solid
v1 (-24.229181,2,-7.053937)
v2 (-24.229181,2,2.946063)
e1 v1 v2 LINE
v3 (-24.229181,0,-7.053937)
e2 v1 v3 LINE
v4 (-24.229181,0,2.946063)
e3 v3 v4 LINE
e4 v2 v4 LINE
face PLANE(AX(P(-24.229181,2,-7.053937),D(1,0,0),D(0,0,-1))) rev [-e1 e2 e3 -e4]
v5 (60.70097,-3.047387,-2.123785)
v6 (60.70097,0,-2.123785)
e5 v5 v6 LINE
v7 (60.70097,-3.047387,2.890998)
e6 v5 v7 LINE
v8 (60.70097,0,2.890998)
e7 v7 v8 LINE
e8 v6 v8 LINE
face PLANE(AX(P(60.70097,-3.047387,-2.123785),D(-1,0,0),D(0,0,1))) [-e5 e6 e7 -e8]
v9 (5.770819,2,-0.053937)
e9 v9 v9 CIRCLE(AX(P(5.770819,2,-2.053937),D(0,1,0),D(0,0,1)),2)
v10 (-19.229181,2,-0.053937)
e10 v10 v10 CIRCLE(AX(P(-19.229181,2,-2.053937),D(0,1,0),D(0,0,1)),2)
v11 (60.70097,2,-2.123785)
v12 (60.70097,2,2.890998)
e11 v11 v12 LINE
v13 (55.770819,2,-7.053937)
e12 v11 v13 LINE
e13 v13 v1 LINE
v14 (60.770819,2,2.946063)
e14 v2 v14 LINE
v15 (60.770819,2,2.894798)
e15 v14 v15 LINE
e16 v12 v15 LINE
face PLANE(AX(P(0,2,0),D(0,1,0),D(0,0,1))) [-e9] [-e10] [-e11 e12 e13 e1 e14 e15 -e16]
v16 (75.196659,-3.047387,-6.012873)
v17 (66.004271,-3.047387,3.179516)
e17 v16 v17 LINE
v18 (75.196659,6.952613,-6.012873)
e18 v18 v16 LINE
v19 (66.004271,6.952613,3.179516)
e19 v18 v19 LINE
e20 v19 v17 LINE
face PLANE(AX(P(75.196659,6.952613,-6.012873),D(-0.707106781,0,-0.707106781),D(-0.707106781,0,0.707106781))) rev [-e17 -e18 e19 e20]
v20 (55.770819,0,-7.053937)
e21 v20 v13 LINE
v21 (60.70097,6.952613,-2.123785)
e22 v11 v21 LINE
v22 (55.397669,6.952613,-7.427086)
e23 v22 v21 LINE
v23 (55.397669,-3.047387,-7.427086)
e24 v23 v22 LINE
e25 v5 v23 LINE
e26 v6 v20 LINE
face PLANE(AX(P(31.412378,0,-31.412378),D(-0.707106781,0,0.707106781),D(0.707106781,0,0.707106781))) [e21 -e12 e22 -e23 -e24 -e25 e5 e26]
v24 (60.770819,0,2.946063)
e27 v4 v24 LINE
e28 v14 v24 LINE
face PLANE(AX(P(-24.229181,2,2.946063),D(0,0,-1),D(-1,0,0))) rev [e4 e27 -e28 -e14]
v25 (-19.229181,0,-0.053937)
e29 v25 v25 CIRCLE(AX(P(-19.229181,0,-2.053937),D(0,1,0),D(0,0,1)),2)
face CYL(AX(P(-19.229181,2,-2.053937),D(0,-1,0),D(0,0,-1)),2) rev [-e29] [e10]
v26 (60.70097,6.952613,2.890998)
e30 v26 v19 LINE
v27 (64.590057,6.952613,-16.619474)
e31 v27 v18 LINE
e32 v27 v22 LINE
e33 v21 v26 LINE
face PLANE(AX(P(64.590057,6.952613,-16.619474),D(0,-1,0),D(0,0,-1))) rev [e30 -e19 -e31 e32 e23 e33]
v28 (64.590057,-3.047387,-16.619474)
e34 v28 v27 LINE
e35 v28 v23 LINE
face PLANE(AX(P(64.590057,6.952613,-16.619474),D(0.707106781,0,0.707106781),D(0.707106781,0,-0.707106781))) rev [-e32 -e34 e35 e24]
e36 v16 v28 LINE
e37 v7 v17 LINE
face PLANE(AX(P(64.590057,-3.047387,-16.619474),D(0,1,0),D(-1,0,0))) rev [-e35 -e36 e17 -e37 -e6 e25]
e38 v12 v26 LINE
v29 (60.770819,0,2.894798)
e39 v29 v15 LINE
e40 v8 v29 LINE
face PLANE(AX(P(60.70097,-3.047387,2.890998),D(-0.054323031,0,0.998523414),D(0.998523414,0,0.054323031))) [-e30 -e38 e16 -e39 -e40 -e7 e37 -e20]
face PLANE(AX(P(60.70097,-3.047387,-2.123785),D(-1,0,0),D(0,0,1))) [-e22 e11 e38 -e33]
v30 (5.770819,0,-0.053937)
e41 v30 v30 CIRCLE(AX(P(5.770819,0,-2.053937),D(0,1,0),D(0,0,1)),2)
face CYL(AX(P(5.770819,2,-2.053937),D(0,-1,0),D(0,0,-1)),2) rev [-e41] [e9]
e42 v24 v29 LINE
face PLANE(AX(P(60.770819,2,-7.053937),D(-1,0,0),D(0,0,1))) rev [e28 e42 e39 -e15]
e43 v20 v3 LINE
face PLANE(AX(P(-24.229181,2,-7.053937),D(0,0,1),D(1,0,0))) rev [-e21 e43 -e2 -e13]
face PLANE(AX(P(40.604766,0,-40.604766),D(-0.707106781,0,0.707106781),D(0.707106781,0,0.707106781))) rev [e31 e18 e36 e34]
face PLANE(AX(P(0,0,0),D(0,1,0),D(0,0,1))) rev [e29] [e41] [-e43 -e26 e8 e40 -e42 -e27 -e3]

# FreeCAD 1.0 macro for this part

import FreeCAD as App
import Part
import Sketcher
from FreeCAD import Vector
Q = App.Units.Quantity


def add_polygon(sketch, points):
    """Adds a closed chain of lines whose ends are joined by coincident constraints."""
    first, n = sketch.GeometryCount, len(points)
    for a, b in zip(points, points[1:] + points[:1]):
        sketch.addGeometry(Part.LineSegment(App.Vector(*a, 0), App.Vector(*b, 0)), False)
    for i in range(n):
        sketch.addConstraint(Sketcher.Constraint("Coincident", first + i, 2, first + (i + 1) % n, 1))

doc = App.newDocument("Part")
body = doc.addObject("PartDesign::Body", "Body")

sketch1 = body.newObject("Sketcher::SketchObject", "Sketch")
sketch1.AttachmentSupport = (doc.getObject("XZ_Plane"), [""])
sketch1.MapMode = "FlatFace"
add_polygon(sketch1, [(-24.2, -7.1), (-24.2, 2.9), (60.8, 2.9), (60.8, -7.1)])
sketch1.addGeometry(Part.Circle(Vector(-19.2, -2.1, 0), Vector(0, 0, 1), 2), False)
sketch1.addGeometry(Part.Circle(Vector(5.8, -2.1, 0), Vector(0, 0, 1), 2), False)
sketch1.addConstraint(Sketcher.Constraint("Vertical", 0))
sketch1.addConstraint(Sketcher.Constraint("Horizontal", 1))
sketch1.addConstraint(Sketcher.Constraint("Vertical", 2))
sketch1.addConstraint(Sketcher.Constraint("Horizontal", 3))
sketch1.addConstraint(Sketcher.Constraint("Equal", 4, 5))
sketch1.addConstraint(Sketcher.Constraint("Horizontal", 4, 3, 5, 3))
sketch1.addConstraint(Sketcher.Constraint("Diameter", 4, 4.0))
sketch1.addConstraint(Sketcher.Constraint("DistanceX", 1, 1, 1, 2, 85.0))
sketch1.addConstraint(Sketcher.Constraint("DistanceY", 0, 1, 0, 2, 10.0))
sketch1.addConstraint(Sketcher.Constraint("DistanceX", 4, 3, 5, 3, 25.0))
sketch1.addConstraint(Sketcher.Constraint("DistanceX", 0, 2, 4, 3, 5.0))
sketch1.addConstraint(Sketcher.Constraint("DistanceY", 4, 3, 0, 2, 5.0))
sketch1.addConstraint(Sketcher.Constraint("DistanceX", 4, 3, -1, 1, 19.229181))
sketch1.addConstraint(Sketcher.Constraint("DistanceY", 4, 3, -1, 1, 2.053937))
pad1 = body.newObject("PartDesign::Pad", "Pad")
pad1.Profile = sketch1
pad1.Length = 2
pad1.Reversed = True

sketch2 = body.newObject("Sketcher::SketchObject", "Sketch001")
sketch2.AttachmentSupport = (doc.getObject("XZ_Plane"), [""])
sketch2.MapMode = "FlatFace"
sketch2.AttachmentOffset = App.Placement(Vector(0, 0, -2), App.Rotation())
add_polygon(sketch2, [(56, -7), (61, -2), (61, -7)])
sketch2.addConstraint(Sketcher.Constraint("Vertical", 1))
sketch2.addConstraint(Sketcher.Constraint("Horizontal", 2))
sketch2.addConstraint(Sketcher.Constraint("Equal", 2, 1))
sketch2.addConstraint(Sketcher.Constraint("DistanceX", 2, 2, 2, 1, 5.0))
sketch2.addConstraint(Sketcher.Constraint("DistanceX", -1, 1, 0, 2, 60.770819))
sketch2.addConstraint(Sketcher.Constraint("DistanceY", 0, 2, -1, 1, 2.053937))
pocket1 = body.newObject("PartDesign::Pocket", "Pocket")
pocket1.Profile = sketch2
pocket1.Length = 10
pocket1.Reversed = True

sketch3 = body.newObject("Sketcher::SketchObject", "Sketch002")
sketch3.Placement = App.Placement(Vector(31.412378, 0, -31.412378), App.Rotation(Vector(-0.707106781, 0, -0.707106781), Vector(0, 0.999999999, 0), Vector(0.707106781, 0, -0.707106781), "ZXY"))
add_polygon(sketch3, [(-49, 7), (-49, -3), (-34, -3), (-34, 7)])
sketch3.addConstraint(Sketcher.Constraint("Vertical", 0))
sketch3.addConstraint(Sketcher.Constraint("Horizontal", 1))
sketch3.addConstraint(Sketcher.Constraint("Vertical", 2))
sketch3.addConstraint(Sketcher.Constraint("Horizontal", 3))
sketch3.addConstraint(Sketcher.Constraint("DistanceX", 1, 1, 1, 2, 15.0))
sketch3.addConstraint(Sketcher.Constraint("DistanceY", 0, 2, 0, 1, 10.0))
sketch3.addConstraint(Sketcher.Constraint("DistanceX", 0, 2, -1, 1, 48.920325))
sketch3.addConstraint(Sketcher.Constraint("DistanceY", 0, 2, -1, 1, 3.047387))
pad2 = body.newObject("PartDesign::Pad", "Pad001")
pad2.Profile = sketch3
pad2.Length = 13

sketch4 = body.newObject("Sketcher::SketchObject", "Sketch003")
sketch4.AttachmentSupport = (doc.getObject("XZ_Plane"), [""])
sketch4.MapMode = "FlatFace"
sketch4.AttachmentOffset = App.Placement(Vector(0, 0, -6.952613), App.Rotation())
add_polygon(sketch4, [(61, -2), (61, 3), (66, 3)])
sketch4.addConstraint(Sketcher.Constraint("Vertical", 0))
sketch4.addConstraint(Sketcher.Constraint("Angle", 2, Q("-135 deg")))
sketch4.addConstraint(Sketcher.Constraint("Distance", 2, 7.5))
sketch4.addConstraint(Sketcher.Constraint("DistanceY", -1, 1, 0, 2, 2.890998))
sketch4.addConstraint(Sketcher.Constraint("DistanceY", 0, 1, 0, 2, 5.014783))
sketch4.addConstraint(Sketcher.Constraint("DistanceX", -1, 1, 0, 2, 60.70097))
pad3 = body.newObject("PartDesign::Pad", "Pad002")
pad3.Profile = sketch4
pad3.Length = 10

doc.recompute()
